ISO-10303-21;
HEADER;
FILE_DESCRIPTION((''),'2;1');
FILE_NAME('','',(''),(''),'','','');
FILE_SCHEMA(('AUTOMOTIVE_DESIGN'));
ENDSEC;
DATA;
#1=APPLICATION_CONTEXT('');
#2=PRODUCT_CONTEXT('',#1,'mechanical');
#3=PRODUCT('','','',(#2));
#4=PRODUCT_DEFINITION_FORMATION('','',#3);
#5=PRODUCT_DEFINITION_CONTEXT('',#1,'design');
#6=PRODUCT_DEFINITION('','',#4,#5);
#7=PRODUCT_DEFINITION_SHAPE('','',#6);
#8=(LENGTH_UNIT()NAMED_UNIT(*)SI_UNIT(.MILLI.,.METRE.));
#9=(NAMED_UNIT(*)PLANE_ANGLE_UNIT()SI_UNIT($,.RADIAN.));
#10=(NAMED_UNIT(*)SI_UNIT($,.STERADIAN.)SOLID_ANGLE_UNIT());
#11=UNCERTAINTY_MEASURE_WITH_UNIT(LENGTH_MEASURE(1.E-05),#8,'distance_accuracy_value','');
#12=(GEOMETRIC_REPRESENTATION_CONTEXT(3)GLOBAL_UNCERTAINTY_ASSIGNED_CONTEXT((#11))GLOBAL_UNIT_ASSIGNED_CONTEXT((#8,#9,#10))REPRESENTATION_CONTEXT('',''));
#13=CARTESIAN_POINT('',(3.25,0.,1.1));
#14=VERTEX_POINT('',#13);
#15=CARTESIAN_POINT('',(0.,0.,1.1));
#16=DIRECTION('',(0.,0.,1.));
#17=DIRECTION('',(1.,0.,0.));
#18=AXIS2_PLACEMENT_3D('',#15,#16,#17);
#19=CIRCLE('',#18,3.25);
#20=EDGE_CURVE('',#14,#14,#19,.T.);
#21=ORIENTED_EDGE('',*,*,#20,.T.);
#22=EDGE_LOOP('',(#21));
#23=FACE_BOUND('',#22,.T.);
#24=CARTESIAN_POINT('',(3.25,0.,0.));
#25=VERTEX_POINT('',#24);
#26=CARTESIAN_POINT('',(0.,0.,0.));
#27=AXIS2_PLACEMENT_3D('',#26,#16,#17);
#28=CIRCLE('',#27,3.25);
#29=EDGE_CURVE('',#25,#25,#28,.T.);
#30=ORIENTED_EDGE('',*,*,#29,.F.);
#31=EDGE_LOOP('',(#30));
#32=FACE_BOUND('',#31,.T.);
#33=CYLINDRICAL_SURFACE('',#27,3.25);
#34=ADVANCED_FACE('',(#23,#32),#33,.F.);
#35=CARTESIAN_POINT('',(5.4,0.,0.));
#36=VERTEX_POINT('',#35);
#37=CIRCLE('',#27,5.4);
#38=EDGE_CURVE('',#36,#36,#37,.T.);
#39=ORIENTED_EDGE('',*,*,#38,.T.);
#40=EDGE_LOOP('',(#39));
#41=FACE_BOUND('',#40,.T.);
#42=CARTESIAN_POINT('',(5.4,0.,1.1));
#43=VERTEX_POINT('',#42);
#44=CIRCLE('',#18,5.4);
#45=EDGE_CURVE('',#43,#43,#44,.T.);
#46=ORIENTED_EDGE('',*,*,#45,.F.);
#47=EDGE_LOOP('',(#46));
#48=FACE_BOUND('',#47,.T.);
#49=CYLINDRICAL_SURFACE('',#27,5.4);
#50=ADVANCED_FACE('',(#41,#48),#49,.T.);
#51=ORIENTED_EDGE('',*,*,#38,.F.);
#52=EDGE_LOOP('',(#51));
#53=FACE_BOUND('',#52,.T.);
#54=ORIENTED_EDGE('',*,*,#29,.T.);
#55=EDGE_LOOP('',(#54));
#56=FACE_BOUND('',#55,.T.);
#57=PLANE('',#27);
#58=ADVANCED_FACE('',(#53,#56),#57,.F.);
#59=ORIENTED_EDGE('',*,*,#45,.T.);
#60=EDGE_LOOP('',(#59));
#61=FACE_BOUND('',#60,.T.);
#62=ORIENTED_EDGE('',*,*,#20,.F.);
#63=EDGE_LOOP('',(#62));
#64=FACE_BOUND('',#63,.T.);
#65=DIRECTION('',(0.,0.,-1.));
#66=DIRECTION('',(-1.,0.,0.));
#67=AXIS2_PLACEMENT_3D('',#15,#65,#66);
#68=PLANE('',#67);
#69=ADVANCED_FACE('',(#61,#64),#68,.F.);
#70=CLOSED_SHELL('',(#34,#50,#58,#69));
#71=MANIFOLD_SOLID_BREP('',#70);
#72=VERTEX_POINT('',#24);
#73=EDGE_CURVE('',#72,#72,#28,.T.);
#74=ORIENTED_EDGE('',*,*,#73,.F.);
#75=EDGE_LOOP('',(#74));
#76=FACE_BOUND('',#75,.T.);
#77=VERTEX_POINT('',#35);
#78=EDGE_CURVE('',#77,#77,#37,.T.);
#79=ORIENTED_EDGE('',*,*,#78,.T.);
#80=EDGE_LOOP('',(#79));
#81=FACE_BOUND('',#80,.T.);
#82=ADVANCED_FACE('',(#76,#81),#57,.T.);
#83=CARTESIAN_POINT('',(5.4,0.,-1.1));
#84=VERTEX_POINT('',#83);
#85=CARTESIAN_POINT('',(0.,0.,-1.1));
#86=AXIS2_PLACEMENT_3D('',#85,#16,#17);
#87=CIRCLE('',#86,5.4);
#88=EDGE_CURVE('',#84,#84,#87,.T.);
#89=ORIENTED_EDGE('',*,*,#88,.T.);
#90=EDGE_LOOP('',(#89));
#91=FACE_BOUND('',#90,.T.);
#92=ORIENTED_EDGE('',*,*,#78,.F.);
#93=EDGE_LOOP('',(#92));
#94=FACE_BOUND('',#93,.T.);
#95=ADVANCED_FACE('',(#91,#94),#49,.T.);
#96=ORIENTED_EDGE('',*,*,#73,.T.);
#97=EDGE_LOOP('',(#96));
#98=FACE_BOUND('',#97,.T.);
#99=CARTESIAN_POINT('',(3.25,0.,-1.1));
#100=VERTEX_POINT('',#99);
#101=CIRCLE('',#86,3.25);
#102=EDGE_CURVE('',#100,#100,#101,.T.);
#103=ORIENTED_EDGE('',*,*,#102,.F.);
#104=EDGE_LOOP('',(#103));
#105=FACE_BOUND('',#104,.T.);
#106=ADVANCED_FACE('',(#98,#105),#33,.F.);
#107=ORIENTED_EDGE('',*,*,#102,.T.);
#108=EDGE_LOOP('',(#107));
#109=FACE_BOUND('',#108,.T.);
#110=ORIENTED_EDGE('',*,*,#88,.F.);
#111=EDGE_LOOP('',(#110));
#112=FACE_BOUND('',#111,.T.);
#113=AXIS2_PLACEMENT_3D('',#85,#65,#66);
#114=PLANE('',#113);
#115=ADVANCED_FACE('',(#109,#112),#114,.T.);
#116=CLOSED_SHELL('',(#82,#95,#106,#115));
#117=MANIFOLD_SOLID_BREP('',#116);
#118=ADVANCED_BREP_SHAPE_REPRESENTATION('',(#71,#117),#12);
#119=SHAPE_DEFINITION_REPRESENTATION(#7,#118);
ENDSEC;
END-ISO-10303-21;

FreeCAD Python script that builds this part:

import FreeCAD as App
import Part
import Sketcher

V = App.Vector
Q = App.Units.Quantity

doc = App.newDocument("Part")
body = doc.addObject("PartDesign::Body", "Body")

sketch1 = body.newObject("Sketcher::SketchObject", "Sketch")
sketch1.AttachmentSupport = (doc.getObject("YZ_Plane"), [""])
sketch1.MapMode = "FlatFace"
sketch1.addGeometry(Part.LineSegment(V(5.4, 1.1, 0), V(3.2, 1.1, 0)), False)
sketch1.addGeometry(Part.LineSegment(V(3.2, 1.1, 0), V(3.2, 0, 0)), False)
sketch1.addGeometry(Part.LineSegment(V(3.2, 0, 0), V(5.4, 0, 0)), False)
sketch1.addGeometry(Part.LineSegment(V(5.4, 0, 0), V(5.4, 1.1, 0)), False)
sketch1.addConstraint(Sketcher.Constraint("Coincident", 0, 2, 1, 1))
sketch1.addConstraint(Sketcher.Constraint("Coincident", 1, 2, 2, 1))
sketch1.addConstraint(Sketcher.Constraint("Coincident", 2, 2, 3, 1))
sketch1.addConstraint(Sketcher.Constraint("Coincident", 3, 2, 0, 1))
sketch1.addConstraint(Sketcher.Constraint("Horizontal", 0))
sketch1.addConstraint(Sketcher.Constraint("Vertical", 1))
sketch1.addConstraint(Sketcher.Constraint("Horizontal", 2))
sketch1.addConstraint(Sketcher.Constraint("Vertical", 3))
sketch1.addConstraint(Sketcher.Constraint("PointOnObject", 1, 2, -1))
sketch1.addConstraint(Sketcher.Constraint("DistanceY", 1, 2, 1, 1, Q("1.1 mm")))
sketch1.addConstraint(Sketcher.Constraint("DistanceX", 0, 2, 0, 1, Q("2.15 mm")))
sketch1.addConstraint(Sketcher.Constraint("DistanceX", -1, 1, 2, 2, Q("5.4 mm")))
revolution = body.newObject("PartDesign::Revolution", "Revolution")
revolution.Profile = sketch1
revolution.ReferenceAxis = (sketch1, ["V_Axis"])
revolution.Angle = 360
body2 = doc.addObject("PartDesign::Body", "Body001")

sketch2 = body2.newObject("Sketcher::SketchObject", "Sketch001")
sketch2.AttachmentSupport = (doc.getObject("YZ_Plane001"), [""])
sketch2.MapMode = "FlatFace"
sketch2.addGeometry(Part.LineSegment(V(5.4, 0, 0), V(3.2, 0, 0)), False)
sketch2.addGeometry(Part.LineSegment(V(3.2, 0, 0), V(3.2, -1.1, 0)), False)
sketch2.addGeometry(Part.LineSegment(V(3.2, -1.1, 0), V(5.4, -1.1, 0)), False)
sketch2.addGeometry(Part.LineSegment(V(5.4, -1.1, 0), V(5.4, 0, 0)), False)
sketch2.addConstraint(Sketcher.Constraint("Coincident", 0, 2, 1, 1))
sketch2.addConstraint(Sketcher.Constraint("Coincident", 1, 2, 2, 1))
sketch2.addConstraint(Sketcher.Constraint("Coincident", 2, 2, 3, 1))
sketch2.addConstraint(Sketcher.Constraint("Coincident", 3, 2, 0, 1))
sketch2.addConstraint(Sketcher.Constraint("Horizontal", 0))
sketch2.addConstraint(Sketcher.Constraint("Vertical", 1))
sketch2.addConstraint(Sketcher.Constraint("Horizontal", 2))
sketch2.addConstraint(Sketcher.Constraint("Vertical", 3))
sketch2.addConstraint(Sketcher.Constraint("PointOnObject", 0, 2, -1))
sketch2.addConstraint(Sketcher.Constraint("DistanceY", 1, 2, 1, 1, Q("1.1 mm")))
sketch2.addConstraint(Sketcher.Constraint("DistanceX", 0, 2, 0, 1, Q("2.15 mm")))
sketch2.addConstraint(Sketcher.Constraint("DistanceX", -1, 1, 2, 2, Q("5.4 mm")))
revolution2 = body2.newObject("PartDesign::Revolution", "Revolution001")
revolution2.Profile = sketch2
revolution2.ReferenceAxis = (sketch2, ["V_Axis"])
revolution2.Angle = 360

doc.recompute()
